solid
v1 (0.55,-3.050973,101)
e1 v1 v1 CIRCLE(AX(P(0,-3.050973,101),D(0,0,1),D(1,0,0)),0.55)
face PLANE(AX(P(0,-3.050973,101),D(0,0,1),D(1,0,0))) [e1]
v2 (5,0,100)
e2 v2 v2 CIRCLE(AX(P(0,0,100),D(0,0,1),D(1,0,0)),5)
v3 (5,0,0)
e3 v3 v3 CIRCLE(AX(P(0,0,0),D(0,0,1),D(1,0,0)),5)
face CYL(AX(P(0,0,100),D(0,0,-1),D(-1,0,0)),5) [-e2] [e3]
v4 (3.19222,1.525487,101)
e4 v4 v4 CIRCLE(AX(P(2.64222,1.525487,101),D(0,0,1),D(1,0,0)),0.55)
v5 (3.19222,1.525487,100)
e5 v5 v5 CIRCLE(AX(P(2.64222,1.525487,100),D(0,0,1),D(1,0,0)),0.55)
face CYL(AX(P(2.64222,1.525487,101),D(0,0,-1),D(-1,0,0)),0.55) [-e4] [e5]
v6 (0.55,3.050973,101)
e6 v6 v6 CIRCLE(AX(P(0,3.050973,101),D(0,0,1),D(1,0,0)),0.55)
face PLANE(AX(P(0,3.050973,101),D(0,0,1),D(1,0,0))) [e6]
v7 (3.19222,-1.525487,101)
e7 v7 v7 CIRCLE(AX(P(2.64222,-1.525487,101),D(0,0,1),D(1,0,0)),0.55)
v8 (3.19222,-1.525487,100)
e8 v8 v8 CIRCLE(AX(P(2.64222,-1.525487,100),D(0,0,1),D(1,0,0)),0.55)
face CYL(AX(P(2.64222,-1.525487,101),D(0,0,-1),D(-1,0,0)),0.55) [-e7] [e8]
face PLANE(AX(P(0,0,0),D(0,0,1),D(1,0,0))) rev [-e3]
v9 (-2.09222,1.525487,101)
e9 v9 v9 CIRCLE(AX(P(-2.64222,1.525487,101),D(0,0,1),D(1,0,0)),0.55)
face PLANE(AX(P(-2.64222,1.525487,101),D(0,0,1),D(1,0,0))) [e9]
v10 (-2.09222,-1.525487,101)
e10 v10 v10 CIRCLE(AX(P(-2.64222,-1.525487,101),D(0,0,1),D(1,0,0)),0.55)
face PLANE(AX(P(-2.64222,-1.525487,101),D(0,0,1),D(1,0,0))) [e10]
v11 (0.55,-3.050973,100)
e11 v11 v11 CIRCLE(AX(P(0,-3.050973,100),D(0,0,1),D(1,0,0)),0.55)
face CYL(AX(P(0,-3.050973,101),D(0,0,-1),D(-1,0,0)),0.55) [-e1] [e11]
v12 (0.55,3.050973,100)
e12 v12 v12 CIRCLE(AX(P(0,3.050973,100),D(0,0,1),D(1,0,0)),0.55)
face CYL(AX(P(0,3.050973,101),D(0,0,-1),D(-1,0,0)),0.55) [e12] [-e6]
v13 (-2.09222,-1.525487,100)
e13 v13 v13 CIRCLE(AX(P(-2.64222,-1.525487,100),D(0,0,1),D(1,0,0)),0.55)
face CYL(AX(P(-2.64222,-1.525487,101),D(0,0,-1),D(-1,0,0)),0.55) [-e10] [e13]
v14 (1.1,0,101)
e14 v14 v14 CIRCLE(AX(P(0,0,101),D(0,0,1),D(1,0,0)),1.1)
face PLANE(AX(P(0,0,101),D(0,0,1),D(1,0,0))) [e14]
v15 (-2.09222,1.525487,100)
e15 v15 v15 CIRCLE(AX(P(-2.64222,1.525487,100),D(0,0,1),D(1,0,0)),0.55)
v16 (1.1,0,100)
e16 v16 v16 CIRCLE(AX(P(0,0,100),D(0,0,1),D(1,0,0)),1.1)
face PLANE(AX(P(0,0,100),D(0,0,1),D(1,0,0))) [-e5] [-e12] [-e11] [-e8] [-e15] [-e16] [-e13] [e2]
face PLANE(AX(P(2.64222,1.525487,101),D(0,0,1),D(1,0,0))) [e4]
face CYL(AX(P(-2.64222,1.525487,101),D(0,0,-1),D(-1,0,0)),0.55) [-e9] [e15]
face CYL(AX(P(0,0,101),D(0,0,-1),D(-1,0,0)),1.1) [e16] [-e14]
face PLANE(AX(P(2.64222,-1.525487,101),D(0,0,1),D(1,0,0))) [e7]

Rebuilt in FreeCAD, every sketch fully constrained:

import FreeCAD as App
import Part
import Sketcher

V = App.Vector
Q = App.Units.Quantity

doc = App.newDocument("Part")
body = doc.addObject("PartDesign::Body", "Body")

sketch1 = doc.addObject("Sketcher::SketchObject", "Sketch")
body.addObject(sketch1)
sketch1.AttachmentSupport = (doc.XY_Plane, [""])
sketch1.MapMode = "FlatFace"
sketch1.addGeometry(Part.Circle(V(0, 0, 0), V(0, 0, 1), 5), False)
sketch1.addConstraint([
    Sketcher.Constraint("Coincident", 0, 3, -1, 1),
    Sketcher.Constraint("Diameter", 0, Q("10 mm")),
])
pad1 = doc.addObject("PartDesign::Pad", "Pad")
body.addObject(pad1)
pad1.Profile = sketch1
pad1.Length = 100

sketch2 = doc.addObject("Sketcher::SketchObject", "Sketch001")
body.addObject(sketch2)
sketch2.AttachmentSupport = (doc.XY_Plane, [""])
sketch2.MapMode = "FlatFace"
sketch2.AttachmentOffset = App.Placement(V(0, 0, 100), App.Rotation())
sketch2.addGeometry([
    Part.Circle(V(0, 0, 0), V(0, 0, 1), 1.1),
    Part.Circle(V(-2.6, 1.5, 0), V(0, 0, 1), 0.6),
    Part.Circle(V(0, 3.1, 0), V(0, 0, 1), 0.6),
    Part.Circle(V(-2.6, -1.5, 0), V(0, 0, 1), 0.6),
    Part.Circle(V(0, -3.1, 0), V(0, 0, 1), 0.6),
    Part.Circle(V(2.6, -1.5, 0), V(0, 0, 1), 0.6),
    Part.Circle(V(2.6, 1.5, 0), V(0, 0, 1), 0.6),
], False)
sketch2.addConstraint([
    Sketcher.Constraint("Coincident", 0, 3, -1, 1),
    Sketcher.Constraint("Equal", 1, 2),
    Sketcher.Constraint("Equal", 2, 3),
    Sketcher.Constraint("Equal", 3, 4),
    Sketcher.Constraint("Equal", 4, 5),
    Sketcher.Constraint("Equal", 5, 6),
    Sketcher.Constraint("Symmetric", 2, 3, 4, 3, -1, 1),
    Sketcher.Constraint("Symmetric", 1, 3, 5, 3, -1, 1),
    Sketcher.Constraint("Symmetric", 3, 3, 6, 3, -1, 1),
    Sketcher.Constraint("Symmetric", 3, 3, 5, 3, -2),
    Sketcher.Constraint("PointOnObject", 2, 3, -2),
    Sketcher.Constraint("Diameter", 0, Q("2.2 mm")),
    Sketcher.Constraint("Diameter", 1, Q("1.1 mm")),
    Sketcher.Constraint("DistanceX", 1, 3, -1, 1, Q("2.64222 mm")),
    Sketcher.Constraint("DistanceY", 3, 3, 2, 3, Q("4.57646 mm")),
    Sketcher.Constraint("DistanceY", -1, 1, 1, 3, Q("1.525487 mm")),
])
pad2 = doc.addObject("PartDesign::Pad", "Pad001")
body.addObject(pad2)
pad2.Profile = sketch2
pad2.Length = 1

doc.recompute()
